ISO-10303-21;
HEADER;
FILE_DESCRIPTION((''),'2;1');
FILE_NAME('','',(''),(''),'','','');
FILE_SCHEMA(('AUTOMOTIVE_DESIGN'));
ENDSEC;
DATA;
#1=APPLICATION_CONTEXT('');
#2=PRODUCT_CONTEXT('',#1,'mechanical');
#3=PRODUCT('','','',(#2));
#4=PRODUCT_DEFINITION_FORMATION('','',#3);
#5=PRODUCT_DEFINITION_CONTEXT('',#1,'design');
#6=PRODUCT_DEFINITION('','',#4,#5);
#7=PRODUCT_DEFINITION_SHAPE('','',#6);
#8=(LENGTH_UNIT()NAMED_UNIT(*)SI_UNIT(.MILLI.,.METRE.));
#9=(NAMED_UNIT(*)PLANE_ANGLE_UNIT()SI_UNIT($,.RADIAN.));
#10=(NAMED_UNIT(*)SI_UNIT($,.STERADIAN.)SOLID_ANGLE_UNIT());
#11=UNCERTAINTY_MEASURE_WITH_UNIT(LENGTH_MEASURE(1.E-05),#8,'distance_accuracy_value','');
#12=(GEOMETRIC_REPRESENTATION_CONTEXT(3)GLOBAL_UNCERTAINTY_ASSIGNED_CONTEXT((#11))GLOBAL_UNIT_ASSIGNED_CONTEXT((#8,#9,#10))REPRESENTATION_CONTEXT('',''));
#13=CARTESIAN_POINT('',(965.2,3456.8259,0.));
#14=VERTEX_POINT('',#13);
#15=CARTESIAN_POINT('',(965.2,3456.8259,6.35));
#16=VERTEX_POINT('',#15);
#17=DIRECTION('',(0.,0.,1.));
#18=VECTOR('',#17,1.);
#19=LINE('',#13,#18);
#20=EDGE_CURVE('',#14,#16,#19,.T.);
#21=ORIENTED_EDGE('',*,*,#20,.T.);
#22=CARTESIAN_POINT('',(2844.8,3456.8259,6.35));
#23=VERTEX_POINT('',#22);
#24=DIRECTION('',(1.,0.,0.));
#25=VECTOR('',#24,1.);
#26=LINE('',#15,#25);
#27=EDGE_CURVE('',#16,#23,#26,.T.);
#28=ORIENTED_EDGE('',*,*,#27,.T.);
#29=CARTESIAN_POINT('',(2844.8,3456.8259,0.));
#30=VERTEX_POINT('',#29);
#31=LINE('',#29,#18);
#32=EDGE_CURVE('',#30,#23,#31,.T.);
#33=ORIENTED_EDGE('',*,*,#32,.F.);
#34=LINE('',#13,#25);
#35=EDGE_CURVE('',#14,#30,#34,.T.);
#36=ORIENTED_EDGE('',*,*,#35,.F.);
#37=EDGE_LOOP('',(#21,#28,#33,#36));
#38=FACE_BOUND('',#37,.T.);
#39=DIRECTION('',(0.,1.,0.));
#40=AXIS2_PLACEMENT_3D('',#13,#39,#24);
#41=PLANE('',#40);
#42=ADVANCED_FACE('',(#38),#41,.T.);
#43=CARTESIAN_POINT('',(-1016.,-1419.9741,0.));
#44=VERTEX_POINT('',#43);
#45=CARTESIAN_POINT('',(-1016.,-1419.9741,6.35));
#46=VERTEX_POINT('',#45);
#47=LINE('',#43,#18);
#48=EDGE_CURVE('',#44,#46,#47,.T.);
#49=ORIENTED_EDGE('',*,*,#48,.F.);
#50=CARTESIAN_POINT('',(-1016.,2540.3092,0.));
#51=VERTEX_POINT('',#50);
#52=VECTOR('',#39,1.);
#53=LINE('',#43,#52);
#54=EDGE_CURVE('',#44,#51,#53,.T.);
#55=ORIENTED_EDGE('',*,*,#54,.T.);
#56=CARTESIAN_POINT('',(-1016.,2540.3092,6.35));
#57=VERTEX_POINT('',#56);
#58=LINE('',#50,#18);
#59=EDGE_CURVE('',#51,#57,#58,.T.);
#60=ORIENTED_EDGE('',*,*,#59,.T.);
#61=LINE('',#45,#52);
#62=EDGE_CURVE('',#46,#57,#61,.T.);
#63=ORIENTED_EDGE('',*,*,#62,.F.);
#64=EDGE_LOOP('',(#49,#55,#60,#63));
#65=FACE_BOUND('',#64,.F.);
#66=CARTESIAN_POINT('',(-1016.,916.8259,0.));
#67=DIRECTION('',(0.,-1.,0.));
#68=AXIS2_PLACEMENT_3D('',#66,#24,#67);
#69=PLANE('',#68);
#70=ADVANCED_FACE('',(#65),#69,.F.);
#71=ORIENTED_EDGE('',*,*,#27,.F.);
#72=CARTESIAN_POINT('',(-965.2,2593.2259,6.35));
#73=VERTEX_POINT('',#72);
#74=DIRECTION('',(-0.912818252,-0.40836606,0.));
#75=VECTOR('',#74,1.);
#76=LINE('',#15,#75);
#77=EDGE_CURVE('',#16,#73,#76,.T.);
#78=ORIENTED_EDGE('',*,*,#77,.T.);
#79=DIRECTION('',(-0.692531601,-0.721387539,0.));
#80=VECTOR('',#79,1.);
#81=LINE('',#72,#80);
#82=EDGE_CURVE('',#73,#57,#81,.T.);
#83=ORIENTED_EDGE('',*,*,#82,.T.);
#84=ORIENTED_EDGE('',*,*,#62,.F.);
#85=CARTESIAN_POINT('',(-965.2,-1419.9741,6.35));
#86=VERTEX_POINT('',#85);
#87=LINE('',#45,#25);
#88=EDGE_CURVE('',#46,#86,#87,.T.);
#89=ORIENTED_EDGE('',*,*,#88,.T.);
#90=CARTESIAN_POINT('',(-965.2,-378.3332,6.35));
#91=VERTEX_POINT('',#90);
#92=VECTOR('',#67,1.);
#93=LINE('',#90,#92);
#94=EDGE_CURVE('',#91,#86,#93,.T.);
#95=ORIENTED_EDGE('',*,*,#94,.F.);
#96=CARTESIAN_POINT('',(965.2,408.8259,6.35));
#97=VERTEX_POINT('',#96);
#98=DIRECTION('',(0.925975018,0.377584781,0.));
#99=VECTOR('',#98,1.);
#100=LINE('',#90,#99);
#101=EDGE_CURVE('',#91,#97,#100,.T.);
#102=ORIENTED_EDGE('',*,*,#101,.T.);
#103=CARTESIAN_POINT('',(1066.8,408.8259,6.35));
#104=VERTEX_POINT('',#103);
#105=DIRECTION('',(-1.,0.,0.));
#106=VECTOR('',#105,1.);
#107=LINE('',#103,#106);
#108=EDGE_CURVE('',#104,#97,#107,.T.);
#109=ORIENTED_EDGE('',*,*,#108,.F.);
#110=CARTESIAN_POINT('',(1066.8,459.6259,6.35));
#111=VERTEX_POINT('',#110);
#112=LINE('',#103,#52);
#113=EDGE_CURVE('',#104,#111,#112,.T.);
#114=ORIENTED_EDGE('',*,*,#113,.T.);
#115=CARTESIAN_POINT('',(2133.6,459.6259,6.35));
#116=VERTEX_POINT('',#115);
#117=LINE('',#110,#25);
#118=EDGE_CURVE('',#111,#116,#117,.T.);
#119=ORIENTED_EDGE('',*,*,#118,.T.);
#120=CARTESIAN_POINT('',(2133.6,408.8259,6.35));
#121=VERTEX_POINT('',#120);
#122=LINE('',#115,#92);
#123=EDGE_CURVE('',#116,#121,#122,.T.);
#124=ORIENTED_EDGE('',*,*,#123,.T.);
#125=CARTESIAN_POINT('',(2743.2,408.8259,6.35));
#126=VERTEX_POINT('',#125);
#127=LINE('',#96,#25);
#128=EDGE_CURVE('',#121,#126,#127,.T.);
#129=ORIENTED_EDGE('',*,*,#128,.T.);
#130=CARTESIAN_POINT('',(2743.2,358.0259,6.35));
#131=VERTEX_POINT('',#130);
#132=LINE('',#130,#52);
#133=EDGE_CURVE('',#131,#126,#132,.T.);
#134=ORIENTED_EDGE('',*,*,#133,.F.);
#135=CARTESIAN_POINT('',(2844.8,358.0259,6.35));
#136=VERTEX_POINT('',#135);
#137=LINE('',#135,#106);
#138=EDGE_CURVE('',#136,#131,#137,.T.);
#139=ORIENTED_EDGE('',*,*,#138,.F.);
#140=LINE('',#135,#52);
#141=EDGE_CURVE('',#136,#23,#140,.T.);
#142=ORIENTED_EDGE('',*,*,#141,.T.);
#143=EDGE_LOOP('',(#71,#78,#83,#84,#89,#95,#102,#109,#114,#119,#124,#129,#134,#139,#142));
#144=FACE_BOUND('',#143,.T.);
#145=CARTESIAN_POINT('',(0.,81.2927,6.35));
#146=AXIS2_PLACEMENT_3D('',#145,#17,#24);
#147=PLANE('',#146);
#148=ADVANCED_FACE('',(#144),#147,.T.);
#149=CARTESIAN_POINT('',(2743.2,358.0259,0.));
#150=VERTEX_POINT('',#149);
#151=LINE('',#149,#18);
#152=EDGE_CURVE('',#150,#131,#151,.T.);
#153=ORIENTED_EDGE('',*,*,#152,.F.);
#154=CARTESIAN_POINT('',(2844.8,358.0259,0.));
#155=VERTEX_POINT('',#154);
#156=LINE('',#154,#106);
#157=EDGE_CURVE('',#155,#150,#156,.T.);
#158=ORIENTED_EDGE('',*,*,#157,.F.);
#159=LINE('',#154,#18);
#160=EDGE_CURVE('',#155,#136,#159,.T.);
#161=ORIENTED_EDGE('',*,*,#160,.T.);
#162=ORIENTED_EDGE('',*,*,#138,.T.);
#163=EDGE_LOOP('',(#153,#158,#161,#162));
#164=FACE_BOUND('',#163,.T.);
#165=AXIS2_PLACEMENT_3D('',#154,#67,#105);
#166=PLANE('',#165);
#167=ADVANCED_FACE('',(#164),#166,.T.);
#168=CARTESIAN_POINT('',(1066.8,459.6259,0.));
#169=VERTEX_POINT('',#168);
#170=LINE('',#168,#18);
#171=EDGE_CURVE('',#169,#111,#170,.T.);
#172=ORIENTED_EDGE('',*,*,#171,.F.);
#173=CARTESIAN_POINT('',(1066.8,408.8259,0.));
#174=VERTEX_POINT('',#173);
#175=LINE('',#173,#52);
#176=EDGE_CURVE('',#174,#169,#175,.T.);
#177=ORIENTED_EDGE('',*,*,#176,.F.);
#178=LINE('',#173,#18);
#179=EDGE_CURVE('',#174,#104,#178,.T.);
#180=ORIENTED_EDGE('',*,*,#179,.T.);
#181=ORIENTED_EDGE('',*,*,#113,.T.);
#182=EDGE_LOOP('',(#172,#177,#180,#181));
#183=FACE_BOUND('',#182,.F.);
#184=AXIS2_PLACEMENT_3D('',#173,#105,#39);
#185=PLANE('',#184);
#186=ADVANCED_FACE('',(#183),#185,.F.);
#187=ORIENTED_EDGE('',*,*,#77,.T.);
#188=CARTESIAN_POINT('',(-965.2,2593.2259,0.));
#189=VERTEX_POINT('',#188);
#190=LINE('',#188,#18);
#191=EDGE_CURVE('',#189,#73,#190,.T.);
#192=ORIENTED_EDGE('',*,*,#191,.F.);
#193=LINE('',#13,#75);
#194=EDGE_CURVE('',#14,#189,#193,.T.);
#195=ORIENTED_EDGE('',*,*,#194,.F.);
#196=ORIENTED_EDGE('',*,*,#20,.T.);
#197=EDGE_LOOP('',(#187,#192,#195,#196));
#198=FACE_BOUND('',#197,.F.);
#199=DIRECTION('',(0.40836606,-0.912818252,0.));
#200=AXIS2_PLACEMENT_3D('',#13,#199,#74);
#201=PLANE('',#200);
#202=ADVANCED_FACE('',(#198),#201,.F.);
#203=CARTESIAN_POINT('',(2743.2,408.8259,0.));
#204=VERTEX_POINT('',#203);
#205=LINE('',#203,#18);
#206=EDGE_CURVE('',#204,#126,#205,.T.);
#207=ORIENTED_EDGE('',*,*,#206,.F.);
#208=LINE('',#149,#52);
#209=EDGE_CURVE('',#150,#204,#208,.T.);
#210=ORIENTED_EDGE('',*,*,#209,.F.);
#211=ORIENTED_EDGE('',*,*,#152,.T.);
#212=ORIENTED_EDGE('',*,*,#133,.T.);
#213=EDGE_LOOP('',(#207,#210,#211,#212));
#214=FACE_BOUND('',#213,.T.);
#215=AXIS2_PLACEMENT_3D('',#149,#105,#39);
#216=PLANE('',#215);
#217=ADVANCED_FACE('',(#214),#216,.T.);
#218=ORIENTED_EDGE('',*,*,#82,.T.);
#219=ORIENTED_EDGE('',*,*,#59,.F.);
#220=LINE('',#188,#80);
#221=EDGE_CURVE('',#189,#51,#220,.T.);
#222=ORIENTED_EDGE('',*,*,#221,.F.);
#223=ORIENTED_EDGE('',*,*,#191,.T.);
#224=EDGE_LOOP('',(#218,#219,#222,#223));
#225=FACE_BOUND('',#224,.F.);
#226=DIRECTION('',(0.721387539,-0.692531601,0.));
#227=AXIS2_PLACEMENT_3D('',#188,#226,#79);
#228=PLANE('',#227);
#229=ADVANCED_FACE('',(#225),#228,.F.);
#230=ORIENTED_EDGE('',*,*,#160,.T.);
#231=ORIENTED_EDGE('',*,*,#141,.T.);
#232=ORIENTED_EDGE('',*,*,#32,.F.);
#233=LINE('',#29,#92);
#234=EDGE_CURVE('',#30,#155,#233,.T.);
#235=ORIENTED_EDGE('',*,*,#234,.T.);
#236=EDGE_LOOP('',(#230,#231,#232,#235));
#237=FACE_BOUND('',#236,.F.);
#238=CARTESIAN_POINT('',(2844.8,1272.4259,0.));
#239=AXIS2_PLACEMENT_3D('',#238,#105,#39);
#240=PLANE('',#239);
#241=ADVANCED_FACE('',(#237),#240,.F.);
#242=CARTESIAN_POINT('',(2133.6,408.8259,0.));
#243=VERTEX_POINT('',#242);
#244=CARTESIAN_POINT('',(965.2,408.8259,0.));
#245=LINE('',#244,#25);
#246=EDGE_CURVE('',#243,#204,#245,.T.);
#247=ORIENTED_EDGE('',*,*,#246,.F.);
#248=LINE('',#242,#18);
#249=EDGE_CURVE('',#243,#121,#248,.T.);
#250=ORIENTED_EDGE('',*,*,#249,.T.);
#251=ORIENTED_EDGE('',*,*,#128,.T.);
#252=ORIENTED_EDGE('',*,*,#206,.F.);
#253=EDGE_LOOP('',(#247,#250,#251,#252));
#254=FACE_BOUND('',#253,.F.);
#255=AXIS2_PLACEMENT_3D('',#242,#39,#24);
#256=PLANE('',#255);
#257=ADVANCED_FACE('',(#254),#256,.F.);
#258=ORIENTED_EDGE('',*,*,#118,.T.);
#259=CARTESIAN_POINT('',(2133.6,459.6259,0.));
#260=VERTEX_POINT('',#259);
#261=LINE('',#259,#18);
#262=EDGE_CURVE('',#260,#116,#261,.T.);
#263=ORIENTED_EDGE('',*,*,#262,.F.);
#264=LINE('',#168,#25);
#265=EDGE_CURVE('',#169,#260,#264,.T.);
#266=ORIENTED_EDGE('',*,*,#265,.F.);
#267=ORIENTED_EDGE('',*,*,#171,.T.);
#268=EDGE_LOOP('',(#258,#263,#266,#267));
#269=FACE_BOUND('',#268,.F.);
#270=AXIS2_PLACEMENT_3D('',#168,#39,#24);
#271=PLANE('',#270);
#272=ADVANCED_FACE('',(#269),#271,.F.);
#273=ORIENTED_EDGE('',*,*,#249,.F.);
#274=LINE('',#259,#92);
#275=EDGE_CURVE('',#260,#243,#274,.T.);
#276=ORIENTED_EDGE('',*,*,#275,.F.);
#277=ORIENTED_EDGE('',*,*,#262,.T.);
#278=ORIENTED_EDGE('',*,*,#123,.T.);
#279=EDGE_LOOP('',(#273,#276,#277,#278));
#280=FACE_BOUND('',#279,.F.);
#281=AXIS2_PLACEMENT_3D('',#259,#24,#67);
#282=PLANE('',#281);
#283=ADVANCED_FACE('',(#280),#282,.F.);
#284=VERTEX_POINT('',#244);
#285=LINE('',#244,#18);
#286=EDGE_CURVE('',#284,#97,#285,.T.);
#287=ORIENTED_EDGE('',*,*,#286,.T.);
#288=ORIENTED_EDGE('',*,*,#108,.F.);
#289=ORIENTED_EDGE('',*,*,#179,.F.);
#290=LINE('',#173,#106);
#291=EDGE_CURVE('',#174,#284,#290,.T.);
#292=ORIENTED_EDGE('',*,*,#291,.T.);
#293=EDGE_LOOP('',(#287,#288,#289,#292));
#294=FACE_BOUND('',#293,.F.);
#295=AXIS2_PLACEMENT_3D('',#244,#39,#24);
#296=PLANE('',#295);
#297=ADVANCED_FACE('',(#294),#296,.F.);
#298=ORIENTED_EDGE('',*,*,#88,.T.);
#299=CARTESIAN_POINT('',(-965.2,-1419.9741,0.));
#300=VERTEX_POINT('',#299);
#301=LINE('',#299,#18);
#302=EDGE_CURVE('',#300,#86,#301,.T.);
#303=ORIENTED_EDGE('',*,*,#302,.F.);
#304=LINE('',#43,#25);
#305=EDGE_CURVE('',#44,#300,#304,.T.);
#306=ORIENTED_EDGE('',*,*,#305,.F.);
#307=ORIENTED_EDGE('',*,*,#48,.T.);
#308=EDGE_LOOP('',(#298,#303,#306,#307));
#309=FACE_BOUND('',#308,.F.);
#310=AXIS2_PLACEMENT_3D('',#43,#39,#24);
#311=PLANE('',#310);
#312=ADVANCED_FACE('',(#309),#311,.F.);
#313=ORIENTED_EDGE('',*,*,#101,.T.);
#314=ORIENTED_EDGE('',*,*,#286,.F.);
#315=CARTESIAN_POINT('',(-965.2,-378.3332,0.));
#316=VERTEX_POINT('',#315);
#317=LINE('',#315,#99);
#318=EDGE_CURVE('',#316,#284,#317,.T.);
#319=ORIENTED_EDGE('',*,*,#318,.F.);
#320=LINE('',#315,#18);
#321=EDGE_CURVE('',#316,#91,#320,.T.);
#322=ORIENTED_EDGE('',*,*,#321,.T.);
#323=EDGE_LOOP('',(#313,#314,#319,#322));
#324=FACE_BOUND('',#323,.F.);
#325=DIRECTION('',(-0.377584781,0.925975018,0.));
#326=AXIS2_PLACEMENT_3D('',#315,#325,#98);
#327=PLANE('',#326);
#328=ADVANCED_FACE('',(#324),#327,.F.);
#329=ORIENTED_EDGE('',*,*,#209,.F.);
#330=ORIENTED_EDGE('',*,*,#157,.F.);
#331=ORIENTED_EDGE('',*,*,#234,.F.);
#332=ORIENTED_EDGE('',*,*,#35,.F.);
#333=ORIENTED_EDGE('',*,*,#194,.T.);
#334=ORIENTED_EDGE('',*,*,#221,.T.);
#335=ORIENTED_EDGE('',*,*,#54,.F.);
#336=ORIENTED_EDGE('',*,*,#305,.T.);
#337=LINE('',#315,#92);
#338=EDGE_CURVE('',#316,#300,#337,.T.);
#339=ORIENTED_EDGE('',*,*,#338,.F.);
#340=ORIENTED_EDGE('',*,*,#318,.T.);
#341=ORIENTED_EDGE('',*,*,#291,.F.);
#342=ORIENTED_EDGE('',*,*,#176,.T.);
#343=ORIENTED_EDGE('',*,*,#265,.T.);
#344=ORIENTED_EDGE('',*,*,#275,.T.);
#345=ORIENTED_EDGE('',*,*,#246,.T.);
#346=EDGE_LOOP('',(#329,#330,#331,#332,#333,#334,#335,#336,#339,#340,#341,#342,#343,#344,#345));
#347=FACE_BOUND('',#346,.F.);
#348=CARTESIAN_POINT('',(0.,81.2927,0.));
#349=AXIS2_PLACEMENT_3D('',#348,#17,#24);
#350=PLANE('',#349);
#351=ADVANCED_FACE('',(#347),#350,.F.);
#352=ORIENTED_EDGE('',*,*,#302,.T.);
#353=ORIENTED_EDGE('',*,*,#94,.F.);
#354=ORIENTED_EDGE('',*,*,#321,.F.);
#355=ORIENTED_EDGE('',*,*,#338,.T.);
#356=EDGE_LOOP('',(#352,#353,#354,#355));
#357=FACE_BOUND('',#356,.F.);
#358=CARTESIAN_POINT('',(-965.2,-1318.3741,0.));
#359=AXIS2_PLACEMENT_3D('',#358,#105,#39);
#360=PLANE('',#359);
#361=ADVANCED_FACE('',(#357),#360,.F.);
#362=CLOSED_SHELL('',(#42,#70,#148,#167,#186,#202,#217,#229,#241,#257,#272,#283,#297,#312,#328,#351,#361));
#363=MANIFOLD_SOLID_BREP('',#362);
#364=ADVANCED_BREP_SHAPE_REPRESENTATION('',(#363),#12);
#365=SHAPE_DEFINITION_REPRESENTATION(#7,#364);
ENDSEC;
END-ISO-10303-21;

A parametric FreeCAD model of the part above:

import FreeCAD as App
import Part
import Sketcher

V = App.Vector
Q = App.Units.Quantity


def add_polygon(sketch, points):
    """Adds a closed chain of lines whose ends are joined by coincident constraints."""
    first, n = sketch.GeometryCount, len(points)
    for a, b in zip(points, points[1:] + points[:1]):
        sketch.addGeometry(Part.LineSegment(App.Vector(*a, 0), App.Vector(*b, 0)), False)
    for i in range(n):
        sketch.addConstraint(Sketcher.Constraint("Coincident", first + i, 2, first + (i + 1) % n, 1))

doc = App.newDocument("Part")
body = doc.addObject("PartDesign::Body", "Body")

sketch1 = doc.addObject("Sketcher::SketchObject", "Sketch")
body.addObject(sketch1)
sketch1.AttachmentSupport = (doc.XY_Plane, [""])
sketch1.MapMode = "FlatFace"
add_polygon(sketch1, [(-1016, -1419.9741), (-965.2, -1419.9741), (-965.2, -378.3332), (965.2, 408.8259), (1066.8, 408.8259), (1066.8, 459.6259), (2133.6, 459.6259), (2133.6, 408.8259), (2743.2, 408.8259), (2743.2, 358.0259), (2844.8, 358.0259), (2844.8, 3456.8259), (965.2, 3456.8259), (-965.2, 2593.2259), (-1016, 2540.3092)])
sketch1.addConstraint([
    Sketcher.Constraint("Horizontal", 0),
    Sketcher.Constraint("Vertical", 1),
    Sketcher.Constraint("Horizontal", 3),
    Sketcher.Constraint("Vertical", 4),
    Sketcher.Constraint("Horizontal", 5),
    Sketcher.Constraint("Vertical", 6),
    Sketcher.Constraint("Horizontal", 7),
    Sketcher.Constraint("Vertical", 8),
    Sketcher.Constraint("Horizontal", 9),
    Sketcher.Constraint("Vertical", 10),
    Sketcher.Constraint("Horizontal", 11),
    Sketcher.Constraint("Vertical", 14),
    Sketcher.Constraint("Horizontal", 3, 2, 6, 2),
    Sketcher.Constraint("Vertical", 2, 2, 11, 2),
    Sketcher.Constraint("Vertical", 1, 2, 12, 2),
    Sketcher.Constraint("Equal", 3, 9),
    Sketcher.Constraint("Equal", 0, 4),
    Sketcher.Constraint("Equal", 6, 8),
    Sketcher.Constraint("DistanceX", 0, 1, 0, 2, Q("2 in")),
    Sketcher.Constraint("DistanceX", 3, 1, 3, 2, Q("4 in")),
    Sketcher.Constraint("DistanceX", 5, 1, 5, 2, Q("42 in")),
    Sketcher.Constraint("DistanceX", 7, 1, 7, 2, Q("24 in")),
    Sketcher.Constraint("DistanceY", 10, 1, 10, 2, Q("122 in")),
    Sketcher.Constraint("DistanceX", 0, 2, -1, 1, Q("38 in")),
    Sketcher.Constraint("DistanceX", -1, 1, 2, 2, Q("38 in")),
    Sketcher.Constraint("DistanceY", 0, 2, 2, 2, Q("72 in")),
    Sketcher.Constraint("DistanceY", 12, 2, 11, 2, Q("34 in")),
    Sketcher.Constraint("Angle", 13, Q("-133.8308 deg")),
    Sketcher.Constraint("DistanceY", 1, 2, -1, 1, Q("14.895 in")),
    Sketcher.Constraint("DistanceY", 1, 1, 1, 2, Q("41.0094882 in")),
])
pad1 = doc.addObject("PartDesign::Pad", "Pad")
body.addObject(pad1)
pad1.Profile = sketch1
pad1.Length = Q("0.25 in")

doc.recompute()
